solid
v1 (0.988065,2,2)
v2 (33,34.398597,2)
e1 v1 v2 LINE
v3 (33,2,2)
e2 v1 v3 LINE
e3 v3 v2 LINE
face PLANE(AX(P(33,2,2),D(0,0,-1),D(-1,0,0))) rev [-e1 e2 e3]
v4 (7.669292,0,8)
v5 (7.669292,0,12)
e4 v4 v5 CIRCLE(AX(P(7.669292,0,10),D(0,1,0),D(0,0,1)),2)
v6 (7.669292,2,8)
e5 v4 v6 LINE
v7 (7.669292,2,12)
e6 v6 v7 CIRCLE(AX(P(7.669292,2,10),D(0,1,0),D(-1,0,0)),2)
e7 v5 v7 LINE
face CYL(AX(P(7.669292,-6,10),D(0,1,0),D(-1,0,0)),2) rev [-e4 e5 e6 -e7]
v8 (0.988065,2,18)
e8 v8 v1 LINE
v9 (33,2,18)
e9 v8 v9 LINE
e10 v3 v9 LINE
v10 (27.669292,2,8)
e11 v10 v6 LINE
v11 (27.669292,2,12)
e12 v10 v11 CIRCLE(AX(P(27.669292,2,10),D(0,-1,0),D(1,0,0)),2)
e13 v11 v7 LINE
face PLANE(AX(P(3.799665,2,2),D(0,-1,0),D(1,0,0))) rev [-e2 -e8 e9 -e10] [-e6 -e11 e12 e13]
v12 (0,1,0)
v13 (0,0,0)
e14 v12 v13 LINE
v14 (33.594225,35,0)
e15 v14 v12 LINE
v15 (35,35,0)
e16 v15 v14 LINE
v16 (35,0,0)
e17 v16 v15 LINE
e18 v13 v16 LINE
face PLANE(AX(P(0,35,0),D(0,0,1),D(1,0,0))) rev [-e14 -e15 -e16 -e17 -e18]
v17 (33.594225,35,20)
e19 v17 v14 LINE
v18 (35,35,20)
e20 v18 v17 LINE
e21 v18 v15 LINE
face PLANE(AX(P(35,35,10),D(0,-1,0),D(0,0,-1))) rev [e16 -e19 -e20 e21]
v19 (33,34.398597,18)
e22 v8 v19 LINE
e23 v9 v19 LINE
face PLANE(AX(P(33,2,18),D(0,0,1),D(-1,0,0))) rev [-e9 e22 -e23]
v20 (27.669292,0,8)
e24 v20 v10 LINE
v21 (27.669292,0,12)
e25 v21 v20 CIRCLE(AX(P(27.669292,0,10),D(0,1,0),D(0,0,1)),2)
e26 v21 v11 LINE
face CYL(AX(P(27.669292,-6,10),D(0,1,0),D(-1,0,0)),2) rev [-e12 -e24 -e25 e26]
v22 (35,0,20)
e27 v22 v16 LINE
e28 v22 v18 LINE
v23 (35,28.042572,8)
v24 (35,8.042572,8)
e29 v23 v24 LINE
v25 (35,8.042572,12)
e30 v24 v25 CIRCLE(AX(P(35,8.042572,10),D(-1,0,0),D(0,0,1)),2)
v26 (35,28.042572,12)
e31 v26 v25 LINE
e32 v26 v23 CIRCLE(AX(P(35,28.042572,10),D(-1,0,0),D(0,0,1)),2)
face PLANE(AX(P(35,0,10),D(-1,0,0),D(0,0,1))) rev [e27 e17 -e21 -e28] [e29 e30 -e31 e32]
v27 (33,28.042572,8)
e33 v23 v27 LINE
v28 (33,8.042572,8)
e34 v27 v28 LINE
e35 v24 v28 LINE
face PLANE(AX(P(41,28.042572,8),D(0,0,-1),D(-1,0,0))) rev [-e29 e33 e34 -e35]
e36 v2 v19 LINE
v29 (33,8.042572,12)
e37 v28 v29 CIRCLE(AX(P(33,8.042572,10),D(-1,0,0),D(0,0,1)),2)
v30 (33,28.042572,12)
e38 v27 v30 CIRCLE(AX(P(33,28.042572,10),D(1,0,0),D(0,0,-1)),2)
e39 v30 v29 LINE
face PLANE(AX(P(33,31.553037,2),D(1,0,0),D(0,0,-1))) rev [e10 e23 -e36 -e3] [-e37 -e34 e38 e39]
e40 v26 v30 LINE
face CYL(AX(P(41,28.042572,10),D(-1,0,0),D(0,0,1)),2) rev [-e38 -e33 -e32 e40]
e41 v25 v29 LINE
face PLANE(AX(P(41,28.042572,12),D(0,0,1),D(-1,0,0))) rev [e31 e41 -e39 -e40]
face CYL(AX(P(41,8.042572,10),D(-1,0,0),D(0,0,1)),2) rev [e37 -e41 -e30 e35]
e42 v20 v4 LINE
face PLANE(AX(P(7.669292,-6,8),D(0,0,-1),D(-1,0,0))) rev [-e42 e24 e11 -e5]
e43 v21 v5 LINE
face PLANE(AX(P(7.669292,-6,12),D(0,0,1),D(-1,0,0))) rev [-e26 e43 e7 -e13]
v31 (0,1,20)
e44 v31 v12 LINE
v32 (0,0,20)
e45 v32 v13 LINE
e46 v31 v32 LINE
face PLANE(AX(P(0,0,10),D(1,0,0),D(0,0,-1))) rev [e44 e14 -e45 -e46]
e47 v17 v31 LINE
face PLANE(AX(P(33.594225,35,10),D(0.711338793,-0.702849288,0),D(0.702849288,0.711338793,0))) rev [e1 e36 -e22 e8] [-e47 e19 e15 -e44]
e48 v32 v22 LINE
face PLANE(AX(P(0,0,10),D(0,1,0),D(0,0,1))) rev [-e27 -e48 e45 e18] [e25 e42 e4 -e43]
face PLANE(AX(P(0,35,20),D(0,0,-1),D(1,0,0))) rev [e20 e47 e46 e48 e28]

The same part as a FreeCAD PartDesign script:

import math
import FreeCAD as App
import Part
import Sketcher

V = App.Vector


def add_polygon(sketch, points):
    """Adds a closed chain of lines whose ends are joined by coincident constraints."""
    first, n = sketch.GeometryCount, len(points)
    for a, b in zip(points, points[1:] + points[:1]):
        sketch.addGeometry(Part.LineSegment(App.Vector(*a, 0), App.Vector(*b, 0)), False)
    for i in range(n):
        sketch.addConstraint(Sketcher.Constraint("Coincident", first + i, 2, first + (i + 1) % n, 1))

doc = App.newDocument("Part")
params = doc.addObject("Spreadsheet::Sheet", "Params")
for row, (alias, value) in enumerate([
    ("sketch1_width", "35 mm"),
    ("sketch1_height", "1 mm"),
    ("pad1_length", "10 mm"),
    ("pocket1_length", "8 mm"),
    ("sketch3_radius", "2 mm"),
    ("sketch3_width", "20 mm"),
    ("pocket2_length", "8 mm"),
    ("sketch4_radius", "2 mm"),
    ("sketch4_width", "20 mm"),
    ("pocket3_length", "8 mm"),
], start=1):
    params.set(f"A{row}", alias)
    params.set(f"B{row}", "=" + value)
    params.setAlias(f"B{row}", alias)

body = doc.addObject("PartDesign::Body", "Body")

sketch1 = doc.addObject("Sketcher::SketchObject", "Sketch")
body.addObject(sketch1)
sketch1.AttachmentSupport = (doc.XY_Plane, [""])
sketch1.MapMode = "FlatFace"
add_polygon(sketch1, [(0, 0), (35, 0), (35, 35), (33.594225, 35), (0, 1)])
sketch1.addConstraint([
    Sketcher.Constraint("Horizontal", 0),
    Sketcher.Constraint("Vertical", 1),
    Sketcher.Constraint("Horizontal", 2),
    Sketcher.Constraint("Vertical", 4),
    Sketcher.Constraint("Coincident", 4, 2, -1, 1),
    Sketcher.Constraint("Equal", 0, 1),
    Sketcher.Constraint("DistanceX", 0, 1, 0, 2, 35.0),
    Sketcher.Constraint("DistanceY", 4, 2, 4, 1, 1.0),
    Sketcher.Constraint("DistanceX", 2, 2, 2, 1, 1.405775),
])
sketch1.setExpression("Constraints[11]", "Params.sketch1_width")
sketch1.setExpression("Constraints[12]", "Params.sketch1_height")
pad1 = doc.addObject("PartDesign::Pad", "Pad")
body.addObject(pad1)
pad1.Profile = sketch1
pad1.setExpression("Length", "Params.pad1_length")

sketch2 = doc.addObject("Sketcher::SketchObject", "Sketch001")
body.addObject(sketch2)
sketch2.AttachmentSupport = (doc.XY_Plane, [""])
sketch2.MapMode = "FlatFace"
sketch2.AttachmentOffset = App.Placement(V(0, 0, 10), App.Rotation())
add_polygon(sketch2, [(33, 2), (33, 35.783784), (-1.057608, 2)])
sketch2.addConstraint([
    Sketcher.Constraint("Vertical", 0),
    Sketcher.Constraint("Horizontal", 2),
    Sketcher.Constraint("DistanceX", -1, 1, 0, 2, 33.0),
    Sketcher.Constraint("DistanceY", -1, 1, 1, 2, 2.0),
    Sketcher.Constraint("Distance", 1, 47.971499),
    Sketcher.Constraint("DistanceX", 2, 1, 2, 2, 34.057608),
])
pocket1 = doc.addObject("PartDesign::Pocket", "Pocket")
body.addObject(pocket1)
pocket1.Profile = sketch2
pocket1.setExpression("Length", "Params.pocket1_length")

sketch3 = doc.addObject("Sketcher::SketchObject", "Sketch002")
body.addObject(sketch3)
sketch3.AttachmentSupport = (doc.XZ_Plane, [""])
sketch3.MapMode = "FlatFace"
sketch3.AttachmentOffset = App.Placement(V(0, 0, -2), App.Rotation())
sketch3.addGeometry([
    Part.LineSegment(V(27.669292, 8, 0), V(7.669292, 8, 0)),
    Part.ArcOfCircle(Part.Circle(V(7.669292, 10, 0), V(0, 0, 1), 2), math.radians(90), math.radians(270)),
    Part.LineSegment(V(7.669292, 12, 0), V(27.669292, 12, 0)),
    Part.ArcOfCircle(Part.Circle(V(27.669292, 10, 0), V(0, 0, 1), 2), math.radians(-90), math.radians(90)),
], False)
sketch3.addConstraint([
    Sketcher.Constraint("Tangent", 0, 2, 1, 2),
    Sketcher.Constraint("Tangent", 1, 1, 2, 1),
    Sketcher.Constraint("Tangent", 2, 2, 3, 2),
    Sketcher.Constraint("Tangent", 3, 1, 0, 1),
    Sketcher.Constraint("Horizontal", 0),
    Sketcher.Constraint("Horizontal", 2),
    Sketcher.Constraint("Radius", 1, 2.0),
    Sketcher.Constraint("DistanceX", 0, 2, 0, 1, 20.0),
    Sketcher.Constraint("DistanceY", -1, 1, 1, 3, 10.0),
    Sketcher.Constraint("DistanceX", -1, 1, 1, 3, 7.669292),
])
sketch3.setExpression("Constraints[6]", "Params.sketch3_radius")
sketch3.setExpression("Constraints[7]", "Params.sketch3_width")
pocket2 = doc.addObject("PartDesign::Pocket", "Pocket001")
body.addObject(pocket2)
pocket2.Profile = sketch3
pocket2.setExpression("Length", "Params.pocket2_length")
pocket2.Reversed = True

sketch4 = doc.addObject("Sketcher::SketchObject", "Sketch003")
body.addObject(sketch4)
sketch4.AttachmentSupport = (doc.YZ_Plane, [""])
sketch4.MapMode = "FlatFace"
sketch4.AttachmentOffset = App.Placement(V(0, 0, 33), App.Rotation())
sketch4.addGeometry([
    Part.LineSegment(V(8.042572, 12, 0), V(28.042572, 12, 0)),
    Part.ArcOfCircle(Part.Circle(V(28.042572, 10, 0), V(0, 0, 1), 2), math.radians(-90), math.radians(90)),
    Part.LineSegment(V(28.042572, 8, 0), V(8.042572, 8, 0)),
    Part.ArcOfCircle(Part.Circle(V(8.042572, 10, 0), V(0, 0, 1), 2), math.radians(90), math.radians(270)),
], False)
sketch4.addConstraint([
    Sketcher.Constraint("Tangent", 0, 2, 1, 2),
    Sketcher.Constraint("Tangent", 1, 1, 2, 1),
    Sketcher.Constraint("Tangent", 2, 2, 3, 2),
    Sketcher.Constraint("Tangent", 3, 1, 0, 1),
    Sketcher.Constraint("Horizontal", 0),
    Sketcher.Constraint("Horizontal", 2),
    Sketcher.Constraint("Radius", 1, 2.0),
    Sketcher.Constraint("DistanceX", 0, 1, 0, 2, 20.0),
    Sketcher.Constraint("DistanceY", -1, 1, 1, 3, 10.0),
    Sketcher.Constraint("DistanceX", -1, 1, 1, 3, 28.042572),
])
sketch4.setExpression("Constraints[6]", "Params.sketch4_radius")
sketch4.setExpression("Constraints[7]", "Params.sketch4_width")
pocket3 = doc.addObject("PartDesign::Pocket", "Pocket002")
body.addObject(pocket3)
pocket3.Profile = sketch4
pocket3.setExpression("Length", "Params.pocket3_length")
pocket3.Reversed = True
body2 = doc.addObject("PartDesign::Body", "Body001")
doc.recompute()

body2.BaseFeature = body
doc.recompute()

mirroring = doc.addObject("Part::Mirroring", "Mirroring")
mirroring.Source = body
mirroring.Base = V(0, 35, 10)
mirroring.Normal = V(0, 0, 1)
body3 = doc.addObject("PartDesign::Body", "Body002")
body3.BaseFeature = mirroring
boolean = doc.addObject("PartDesign::Boolean", "Boolean")
body2.addObject(boolean)
boolean.Type = "Fuse"
boolean.addObjects([body3])
doc.recompute()
mirroring.Visibility = False

doc.recompute()
